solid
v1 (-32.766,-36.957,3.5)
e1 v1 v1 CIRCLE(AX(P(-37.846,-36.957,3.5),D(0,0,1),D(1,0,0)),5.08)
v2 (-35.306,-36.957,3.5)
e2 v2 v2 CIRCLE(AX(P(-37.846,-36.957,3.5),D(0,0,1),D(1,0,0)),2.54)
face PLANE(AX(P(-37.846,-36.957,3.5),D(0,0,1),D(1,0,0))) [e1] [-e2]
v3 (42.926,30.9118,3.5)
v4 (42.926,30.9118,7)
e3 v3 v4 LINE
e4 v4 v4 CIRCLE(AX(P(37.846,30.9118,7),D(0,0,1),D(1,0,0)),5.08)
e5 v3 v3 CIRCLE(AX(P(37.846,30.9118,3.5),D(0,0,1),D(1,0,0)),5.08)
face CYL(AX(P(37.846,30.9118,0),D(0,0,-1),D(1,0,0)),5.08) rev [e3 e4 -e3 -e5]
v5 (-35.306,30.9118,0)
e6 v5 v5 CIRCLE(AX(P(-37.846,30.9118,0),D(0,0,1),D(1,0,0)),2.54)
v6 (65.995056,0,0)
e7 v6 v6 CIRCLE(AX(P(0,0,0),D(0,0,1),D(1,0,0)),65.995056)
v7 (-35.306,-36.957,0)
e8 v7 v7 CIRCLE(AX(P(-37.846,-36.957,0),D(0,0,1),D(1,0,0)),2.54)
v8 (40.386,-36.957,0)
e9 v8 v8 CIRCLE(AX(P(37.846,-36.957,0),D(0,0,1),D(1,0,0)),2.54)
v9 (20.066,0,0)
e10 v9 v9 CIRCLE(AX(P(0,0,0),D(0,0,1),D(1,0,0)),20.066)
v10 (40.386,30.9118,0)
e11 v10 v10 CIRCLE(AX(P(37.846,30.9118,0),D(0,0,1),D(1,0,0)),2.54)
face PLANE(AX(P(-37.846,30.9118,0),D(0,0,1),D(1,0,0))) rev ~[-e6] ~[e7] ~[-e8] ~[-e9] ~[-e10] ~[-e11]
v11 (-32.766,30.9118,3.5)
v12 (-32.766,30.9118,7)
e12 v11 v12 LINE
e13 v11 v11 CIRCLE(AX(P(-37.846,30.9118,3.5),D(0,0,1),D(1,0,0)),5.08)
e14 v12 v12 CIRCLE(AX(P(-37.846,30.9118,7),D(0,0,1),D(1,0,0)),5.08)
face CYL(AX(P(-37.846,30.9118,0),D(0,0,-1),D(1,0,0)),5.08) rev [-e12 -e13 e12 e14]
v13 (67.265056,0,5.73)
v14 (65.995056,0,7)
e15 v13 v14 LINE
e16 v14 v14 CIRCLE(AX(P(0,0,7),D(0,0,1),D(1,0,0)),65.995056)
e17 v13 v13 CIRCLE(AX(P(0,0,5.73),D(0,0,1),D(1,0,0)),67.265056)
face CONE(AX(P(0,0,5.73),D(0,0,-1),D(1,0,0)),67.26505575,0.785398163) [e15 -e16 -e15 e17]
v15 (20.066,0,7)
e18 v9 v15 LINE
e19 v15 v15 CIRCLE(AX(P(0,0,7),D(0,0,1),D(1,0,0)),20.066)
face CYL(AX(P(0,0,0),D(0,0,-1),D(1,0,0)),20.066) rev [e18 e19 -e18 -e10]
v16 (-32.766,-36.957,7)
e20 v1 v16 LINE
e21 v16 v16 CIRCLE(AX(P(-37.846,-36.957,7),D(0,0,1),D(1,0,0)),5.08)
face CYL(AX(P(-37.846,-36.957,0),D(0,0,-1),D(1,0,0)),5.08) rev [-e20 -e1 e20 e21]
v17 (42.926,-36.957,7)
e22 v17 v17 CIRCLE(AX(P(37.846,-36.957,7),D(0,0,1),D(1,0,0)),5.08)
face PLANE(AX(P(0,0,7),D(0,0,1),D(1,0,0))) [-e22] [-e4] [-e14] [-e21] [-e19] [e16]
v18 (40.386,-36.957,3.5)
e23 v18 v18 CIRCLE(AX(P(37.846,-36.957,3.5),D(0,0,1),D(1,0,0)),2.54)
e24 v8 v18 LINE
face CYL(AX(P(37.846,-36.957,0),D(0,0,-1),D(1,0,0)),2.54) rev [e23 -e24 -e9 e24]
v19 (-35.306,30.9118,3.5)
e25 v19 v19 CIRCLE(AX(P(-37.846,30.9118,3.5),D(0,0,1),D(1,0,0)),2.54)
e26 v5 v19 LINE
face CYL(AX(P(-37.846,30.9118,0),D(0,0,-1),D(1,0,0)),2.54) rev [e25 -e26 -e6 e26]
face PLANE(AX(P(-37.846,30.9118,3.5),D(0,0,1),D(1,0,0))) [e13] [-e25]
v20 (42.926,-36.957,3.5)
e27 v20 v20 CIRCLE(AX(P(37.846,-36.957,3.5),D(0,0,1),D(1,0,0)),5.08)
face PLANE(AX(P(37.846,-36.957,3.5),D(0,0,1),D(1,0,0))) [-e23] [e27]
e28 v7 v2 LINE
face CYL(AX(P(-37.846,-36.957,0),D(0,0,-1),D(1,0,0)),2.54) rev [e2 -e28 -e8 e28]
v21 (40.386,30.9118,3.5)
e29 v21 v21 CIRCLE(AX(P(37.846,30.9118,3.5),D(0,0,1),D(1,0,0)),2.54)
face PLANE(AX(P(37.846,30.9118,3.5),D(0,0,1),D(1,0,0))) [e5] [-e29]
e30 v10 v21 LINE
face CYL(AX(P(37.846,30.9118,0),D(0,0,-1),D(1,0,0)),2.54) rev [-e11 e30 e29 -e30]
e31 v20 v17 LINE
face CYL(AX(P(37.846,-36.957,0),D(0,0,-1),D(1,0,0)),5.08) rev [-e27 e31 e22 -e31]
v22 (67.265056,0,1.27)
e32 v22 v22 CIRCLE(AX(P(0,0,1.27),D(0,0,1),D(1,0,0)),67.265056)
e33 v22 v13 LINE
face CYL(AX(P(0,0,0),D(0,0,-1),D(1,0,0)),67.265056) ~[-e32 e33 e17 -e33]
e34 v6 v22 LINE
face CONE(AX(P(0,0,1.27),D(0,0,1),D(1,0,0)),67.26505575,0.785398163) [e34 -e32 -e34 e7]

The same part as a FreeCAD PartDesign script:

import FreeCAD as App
import Part
import Sketcher

V = App.Vector
Q = App.Units.Quantity


def edges_at(feature, points):
    """Names of the edges that pass closest to the given points."""
    edges = feature.Shape.Edges
    near = lambda p: min(range(len(edges)), key=lambda i: edges[i].distToShape(Part.Vertex(*p))[0])
    return sorted({f"Edge{near(p) + 1}" for p in points})

doc = App.newDocument("Part")
body = doc.addObject("PartDesign::Body", "Body")

# Sketch on XY plane
sketch1 = body.newObject("Sketcher::SketchObject", "Sketch")
sketch1.AttachmentSupport = (doc.getObject("XY_Plane"), [""])
sketch1.MapMode = "FlatFace"
sketch1.addGeometry([
    Part.Circle(V(0, 0, 0), V(0, 0, 1), 67.265056),  # 0
    Part.Circle(V(-37.846, -36.957, 0), V(0, 0, 1), 5.08),  # 1
    Part.Circle(V(37.846, -36.957, 0), V(0, 0, 1), 5.08),  # 2
    Part.Circle(V(-37.846, 30.9118, 0), V(0, 0, 1), 5.08),  # 3
    Part.Circle(V(0, 0, 0), V(0, 0, 1), 20.066),  # 4
    Part.Circle(V(37.846, 30.9118, 0), V(0, 0, 1), 5.08),  # 5
], False)
sketch1.addConstraint([
    Sketcher.Constraint("Coincident", 0, 3, -1, 1),
    Sketcher.Constraint("Coincident", 4, 3, -1, 1),
    Sketcher.Constraint("Equal", 1, 2),
    Sketcher.Constraint("Equal", 2, 3),
    Sketcher.Constraint("Equal", 3, 5),
    Sketcher.Constraint("Symmetric", 1, 3, 2, 3, -2),
    Sketcher.Constraint("Symmetric", 3, 3, 5, 3, -2),
    Sketcher.Constraint("Vertical", 1, 3, 3, 3),
    Sketcher.Constraint("Diameter", 1, Q("0.4 in")),
    Sketcher.Constraint("Diameter", 4, Q("1.58 in")),
    Sketcher.Constraint("DistanceX", 1, 3, -1, 1, Q("1.49 in")),
    Sketcher.Constraint("Diameter", 0, Q("134.530112 mm")),
    Sketcher.Constraint("DistanceY", 1, 3, -1, 1, Q("1.455 in")),
    Sketcher.Constraint("DistanceY", -1, 1, 3, 3, Q("1.217 in")),
])
pad1 = body.newObject("PartDesign::Pad", "Pad")
pad1.Profile = sketch1
pad1.Length = 7

# Sketch on XY plane
sketch2 = body.newObject("Sketcher::SketchObject", "Sketch001")
sketch2.AttachmentSupport = (doc.getObject("XY_Plane"), [""])
sketch2.MapMode = "FlatFace"
sketch2.addGeometry([
    Part.Circle(V(-37.846, 30.9118, 0), V(0, 0, 1), 5.08),  # 0
    Part.Circle(V(-37.846, 30.9118, 0), V(0, 0, 1), 2.54),  # 1
    Part.Circle(V(37.846, 30.9118, 0), V(0, 0, 1), 5.08),  # 2
    Part.Circle(V(37.846, 30.9118, 0), V(0, 0, 1), 2.54),  # 3
    Part.Circle(V(37.846, -36.957, 0), V(0, 0, 1), 5.08),  # 4
    Part.Circle(V(37.846, -36.957, 0), V(0, 0, 1), 2.54),  # 5
    Part.Circle(V(-37.846, -36.957, 0), V(0, 0, 1), 5.08),  # 6
    Part.Circle(V(-37.846, -36.957, 0), V(0, 0, 1), 2.54),  # 7
], False)
sketch2.addConstraint([
    Sketcher.Constraint("Coincident", 1, 3, 0, 3),
    Sketcher.Constraint("Coincident", 3, 3, 2, 3),
    Sketcher.Constraint("Coincident", 5, 3, 4, 3),
    Sketcher.Constraint("Coincident", 7, 3, 6, 3),
    Sketcher.Constraint("Equal", 0, 2),
    Sketcher.Constraint("Equal", 1, 3),
    Sketcher.Constraint("Equal", 2, 4),
    Sketcher.Constraint("Equal", 3, 5),
    Sketcher.Constraint("Equal", 4, 6),
    Sketcher.Constraint("Equal", 5, 7),
    Sketcher.Constraint("Symmetric", 0, 3, 2, 3, -2),
    Sketcher.Constraint("Symmetric", 4, 3, 6, 3, -2),
    Sketcher.Constraint("Vertical", 3, 3, 4, 3),
    Sketcher.Constraint("Diameter", 0, Q("0.4 in")),
    Sketcher.Constraint("Diameter", 1, Q("0.2 in")),
    Sketcher.Constraint("DistanceX", 0, 3, -1, 1, Q("1.49 in")),
    Sketcher.Constraint("DistanceY", -1, 1, 0, 3, Q("1.217 in")),
    Sketcher.Constraint("DistanceY", 4, 3, -1, 1, Q("1.455 in")),
])
pad2 = body.newObject("PartDesign::Pad", "Pad001")
pad2.Profile = sketch2
pad2.Length = 3.5
doc.recompute()

chamfer = body.newObject("PartDesign::Chamfer", "Chamfer")
chamfer.Base = (pad2, edges_at(pad2, [(-67.265, 0, 0), (-67.265, 0, 7)]))
chamfer.Size = Q("0.05 in")

doc.recompute()
